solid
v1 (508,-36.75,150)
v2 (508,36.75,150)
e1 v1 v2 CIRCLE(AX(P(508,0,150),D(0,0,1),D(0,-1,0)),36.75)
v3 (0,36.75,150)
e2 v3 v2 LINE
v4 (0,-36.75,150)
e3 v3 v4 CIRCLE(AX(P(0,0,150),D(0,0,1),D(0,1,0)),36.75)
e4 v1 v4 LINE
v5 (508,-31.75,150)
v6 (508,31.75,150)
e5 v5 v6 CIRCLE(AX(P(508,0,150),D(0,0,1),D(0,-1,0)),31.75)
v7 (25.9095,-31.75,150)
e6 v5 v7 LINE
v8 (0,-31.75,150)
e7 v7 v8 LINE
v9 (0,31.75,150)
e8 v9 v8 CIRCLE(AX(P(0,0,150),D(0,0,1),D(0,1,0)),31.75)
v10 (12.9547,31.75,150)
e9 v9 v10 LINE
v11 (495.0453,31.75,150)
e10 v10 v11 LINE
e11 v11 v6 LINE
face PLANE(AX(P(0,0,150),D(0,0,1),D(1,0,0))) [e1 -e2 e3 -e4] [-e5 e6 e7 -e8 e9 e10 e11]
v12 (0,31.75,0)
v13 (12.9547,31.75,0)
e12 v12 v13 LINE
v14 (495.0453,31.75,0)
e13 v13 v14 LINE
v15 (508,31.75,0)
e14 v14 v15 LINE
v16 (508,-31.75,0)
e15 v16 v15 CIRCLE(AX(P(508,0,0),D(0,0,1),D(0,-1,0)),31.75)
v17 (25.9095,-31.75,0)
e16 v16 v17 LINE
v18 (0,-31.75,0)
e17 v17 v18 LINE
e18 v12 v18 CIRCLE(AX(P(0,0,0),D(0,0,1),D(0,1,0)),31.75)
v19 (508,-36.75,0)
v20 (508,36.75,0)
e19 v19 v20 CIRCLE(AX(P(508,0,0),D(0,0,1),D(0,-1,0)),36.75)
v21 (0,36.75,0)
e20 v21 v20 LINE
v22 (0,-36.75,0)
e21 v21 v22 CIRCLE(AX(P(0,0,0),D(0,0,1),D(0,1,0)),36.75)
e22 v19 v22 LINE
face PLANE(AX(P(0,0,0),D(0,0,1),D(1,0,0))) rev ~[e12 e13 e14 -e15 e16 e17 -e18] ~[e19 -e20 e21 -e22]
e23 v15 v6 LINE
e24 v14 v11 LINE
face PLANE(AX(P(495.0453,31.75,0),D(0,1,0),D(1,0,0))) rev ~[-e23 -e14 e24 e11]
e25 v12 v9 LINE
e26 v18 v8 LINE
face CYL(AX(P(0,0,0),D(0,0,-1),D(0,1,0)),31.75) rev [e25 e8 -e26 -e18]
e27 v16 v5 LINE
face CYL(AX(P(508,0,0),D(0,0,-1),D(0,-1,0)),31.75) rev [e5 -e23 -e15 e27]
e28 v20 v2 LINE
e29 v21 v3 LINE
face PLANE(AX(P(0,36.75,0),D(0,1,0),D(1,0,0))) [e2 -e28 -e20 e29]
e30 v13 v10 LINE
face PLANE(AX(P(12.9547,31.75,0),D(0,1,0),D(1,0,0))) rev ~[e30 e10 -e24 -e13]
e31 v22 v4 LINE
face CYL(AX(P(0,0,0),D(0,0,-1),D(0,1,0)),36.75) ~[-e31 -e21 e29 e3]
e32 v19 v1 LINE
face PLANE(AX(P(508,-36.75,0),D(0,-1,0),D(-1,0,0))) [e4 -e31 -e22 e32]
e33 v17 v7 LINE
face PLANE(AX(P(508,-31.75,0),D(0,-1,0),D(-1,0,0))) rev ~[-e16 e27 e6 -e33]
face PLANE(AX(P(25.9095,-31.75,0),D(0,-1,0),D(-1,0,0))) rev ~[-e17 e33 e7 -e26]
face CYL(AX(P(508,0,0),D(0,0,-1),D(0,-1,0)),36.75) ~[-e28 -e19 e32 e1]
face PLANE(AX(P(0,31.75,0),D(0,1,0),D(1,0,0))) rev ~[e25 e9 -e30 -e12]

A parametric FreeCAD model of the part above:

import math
import FreeCAD as App
import Part
import Sketcher
Q = App.Units.Quantity

doc = App.newDocument("Part")
params = doc.addObject("Spreadsheet::Sheet", "Params")
for row, (alias, value) in enumerate([
    ("sketch1_width", "20 in"),
    ("sketch1_radius", "1.25 in"),
    ("pad1_length", "5.9055118 in"),
], start=1):
    params.set(f"A{row}", alias)
    params.set(f"B{row}", "=" + value)
    params.setAlias(f"B{row}", alias)

body = doc.addObject("PartDesign::Body", "Body")

# Sketch on XY plane
sketch1 = body.newObject("Sketcher::SketchObject", "Sketch")
sketch1.AttachmentSupport = (doc.getObject("XY_Plane"), [""])
sketch1.MapMode = "FlatFace"
sketch1.addGeometry([
    Part.LineSegment(App.Vector(508, 37, 0), App.Vector(0, 37, 0)),  # 0
    Part.ArcOfCircle(Part.Circle(App.Vector(0, 0, 0), App.Vector(0, 0, 1), 37), math.radians(90), math.radians(270)),  # 1
    Part.LineSegment(App.Vector(0, -37, 0), App.Vector(508, -37, 0)),  # 2
    Part.ArcOfCircle(Part.Circle(App.Vector(508, 0, 0), App.Vector(0, 0, 1), 37), math.radians(-90), math.radians(90)),  # 3
    Part.ArcOfCircle(Part.Circle(App.Vector(0, 0, 0), App.Vector(0, 0, 1), 32), math.radians(90), math.radians(270)),  # 4
    Part.LineSegment(App.Vector(0, 32, 0), App.Vector(508, 32, 0)),  # 5
    Part.ArcOfCircle(Part.Circle(App.Vector(508, 0, 0), App.Vector(0, 0, 1), 32), math.radians(-90), math.radians(90)),  # 6
    Part.LineSegment(App.Vector(508, -32, 0), App.Vector(0, -32, 0)),  # 7
], False)
sketch1.addConstraint([
    Sketcher.Constraint("Tangent", 0, 2, 1, 1),
    Sketcher.Constraint("Tangent", 1, 2, 2, 1),
    Sketcher.Constraint("Tangent", 2, 2, 3, 1),
    Sketcher.Constraint("Tangent", 3, 2, 0, 1),
    Sketcher.Constraint("Tangent", 4, 1, 5, 1),
    Sketcher.Constraint("Tangent", 5, 2, 6, 2),
    Sketcher.Constraint("Tangent", 6, 1, 7, 1),
    Sketcher.Constraint("Tangent", 7, 2, 4, 2),
    Sketcher.Constraint("Horizontal", 0),
    Sketcher.Constraint("Horizontal", 2),
    Sketcher.Constraint("Horizontal", 5),
    Sketcher.Constraint("Horizontal", 7),
    Sketcher.Constraint("Coincident", 1, 3, -1, 1),
    Sketcher.Constraint("Coincident", 4, 3, -1, 1),
    Sketcher.Constraint("Vertical", 6, 3, 2, 2),
    Sketcher.Constraint("DistanceX", 0, 2, 0, 1, Q("20 in")),
    Sketcher.Constraint("Radius", 4, Q("1.25 in")),
    Sketcher.Constraint("Radius", 1, Q("36.75 mm")),
])
sketch1.setExpression("Constraints[15]", "Params.sketch1_width")
sketch1.setExpression("Constraints[16]", "Params.sketch1_radius")
pad1 = body.newObject("PartDesign::Pad", "Pad")
pad1.Profile = sketch1
pad1.setExpression("Length", "Params.pad1_length")

doc.recompute()
